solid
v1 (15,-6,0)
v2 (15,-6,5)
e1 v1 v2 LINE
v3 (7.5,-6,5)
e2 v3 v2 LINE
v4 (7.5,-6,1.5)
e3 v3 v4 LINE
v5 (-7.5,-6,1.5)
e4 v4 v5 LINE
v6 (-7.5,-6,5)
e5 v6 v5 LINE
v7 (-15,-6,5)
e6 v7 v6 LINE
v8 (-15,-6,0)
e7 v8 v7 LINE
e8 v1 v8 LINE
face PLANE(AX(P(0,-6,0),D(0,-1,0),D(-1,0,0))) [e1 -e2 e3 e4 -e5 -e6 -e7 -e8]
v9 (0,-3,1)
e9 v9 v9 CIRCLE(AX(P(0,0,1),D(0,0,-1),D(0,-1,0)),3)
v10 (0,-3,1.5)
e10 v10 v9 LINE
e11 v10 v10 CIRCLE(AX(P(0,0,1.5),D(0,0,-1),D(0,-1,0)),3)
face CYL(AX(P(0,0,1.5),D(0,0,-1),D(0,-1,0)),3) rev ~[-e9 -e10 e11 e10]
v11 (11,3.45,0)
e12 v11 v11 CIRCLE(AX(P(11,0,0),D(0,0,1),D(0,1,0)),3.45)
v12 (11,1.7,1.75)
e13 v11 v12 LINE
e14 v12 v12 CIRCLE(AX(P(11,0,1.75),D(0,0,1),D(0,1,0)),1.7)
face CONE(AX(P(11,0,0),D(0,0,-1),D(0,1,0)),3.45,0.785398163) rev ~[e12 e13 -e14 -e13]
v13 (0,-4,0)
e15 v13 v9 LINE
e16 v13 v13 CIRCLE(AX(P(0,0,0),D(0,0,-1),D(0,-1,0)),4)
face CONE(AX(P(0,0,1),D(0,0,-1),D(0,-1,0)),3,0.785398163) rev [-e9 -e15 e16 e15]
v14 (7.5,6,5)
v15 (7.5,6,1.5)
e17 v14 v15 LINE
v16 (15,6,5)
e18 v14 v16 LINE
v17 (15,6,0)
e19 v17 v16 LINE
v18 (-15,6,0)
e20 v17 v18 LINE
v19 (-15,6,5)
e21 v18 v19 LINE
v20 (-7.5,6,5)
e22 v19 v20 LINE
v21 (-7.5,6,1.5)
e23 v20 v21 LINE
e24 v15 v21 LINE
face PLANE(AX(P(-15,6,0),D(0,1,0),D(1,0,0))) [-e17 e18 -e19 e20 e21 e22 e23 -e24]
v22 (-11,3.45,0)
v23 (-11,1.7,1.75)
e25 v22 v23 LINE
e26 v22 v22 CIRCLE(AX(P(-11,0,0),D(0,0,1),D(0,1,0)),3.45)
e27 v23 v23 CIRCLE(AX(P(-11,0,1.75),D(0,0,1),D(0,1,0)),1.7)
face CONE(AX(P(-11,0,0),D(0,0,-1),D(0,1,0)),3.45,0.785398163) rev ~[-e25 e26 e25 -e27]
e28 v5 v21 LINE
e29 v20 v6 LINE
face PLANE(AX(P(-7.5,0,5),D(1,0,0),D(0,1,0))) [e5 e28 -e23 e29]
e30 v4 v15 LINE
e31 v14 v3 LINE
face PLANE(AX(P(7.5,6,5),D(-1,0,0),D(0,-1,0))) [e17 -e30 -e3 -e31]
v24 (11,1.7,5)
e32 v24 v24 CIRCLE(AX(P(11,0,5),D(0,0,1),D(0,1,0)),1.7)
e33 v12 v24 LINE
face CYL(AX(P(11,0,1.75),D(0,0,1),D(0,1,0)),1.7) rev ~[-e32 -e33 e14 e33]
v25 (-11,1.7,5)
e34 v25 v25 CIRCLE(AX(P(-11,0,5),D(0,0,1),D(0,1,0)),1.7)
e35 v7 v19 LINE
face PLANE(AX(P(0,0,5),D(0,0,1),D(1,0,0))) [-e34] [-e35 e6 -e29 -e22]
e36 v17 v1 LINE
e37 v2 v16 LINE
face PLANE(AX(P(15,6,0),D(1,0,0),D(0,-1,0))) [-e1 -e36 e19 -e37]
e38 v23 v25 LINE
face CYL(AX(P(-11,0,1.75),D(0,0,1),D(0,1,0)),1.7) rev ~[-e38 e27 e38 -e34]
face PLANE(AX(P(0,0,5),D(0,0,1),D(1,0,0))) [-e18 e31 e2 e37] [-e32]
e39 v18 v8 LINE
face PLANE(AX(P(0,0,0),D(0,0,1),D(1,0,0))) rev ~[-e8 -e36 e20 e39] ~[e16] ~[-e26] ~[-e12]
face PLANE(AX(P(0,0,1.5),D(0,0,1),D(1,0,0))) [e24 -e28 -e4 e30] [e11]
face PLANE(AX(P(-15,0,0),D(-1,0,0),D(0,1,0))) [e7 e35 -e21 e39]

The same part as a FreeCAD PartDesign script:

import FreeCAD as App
import Part
import Sketcher
from FreeCAD import Vector
Q = App.Units.Quantity


def edges_at(feature, points):
    """Names of the edges that pass closest to the given points."""
    edges = feature.Shape.Edges
    near = lambda p: min(range(len(edges)), key=lambda i: edges[i].distToShape(Part.Vertex(*p))[0])
    return sorted({f"Edge{near(p) + 1}" for p in points})

doc = App.newDocument("Part")
body = doc.addObject("PartDesign::Body", "Body")

# Sketch on XY plane
sketch1 = doc.addObject("Sketcher::SketchObject", "Sketch")
body.addObject(sketch1)
sketch1.AttachmentSupport = (doc.XY_Plane, [""])
sketch1.MapMode = "FlatFace"
sketch1.addGeometry([
    Part.LineSegment(Vector(-15, 6, 0), Vector(-15, -6, 0)),
    Part.LineSegment(Vector(-15, -6, 0), Vector(15, -6, 0)),
    Part.LineSegment(Vector(15, -6, 0), Vector(15, 6, 0)),
    Part.LineSegment(Vector(15, 6, 0), Vector(-15, 6, 0)),
], False)
sketch1.addConstraint([
    Sketcher.Constraint("Coincident", 0, 2, 1, 1),
    Sketcher.Constraint("Coincident", 1, 2, 2, 1),
    Sketcher.Constraint("Coincident", 2, 2, 3, 1),
    Sketcher.Constraint("Coincident", 3, 2, 0, 1),
    Sketcher.Constraint("Vertical", 0),
    Sketcher.Constraint("Horizontal", 1),
    Sketcher.Constraint("Vertical", 2),
    Sketcher.Constraint("Horizontal", 3),
    Sketcher.Constraint("Symmetric", 0, 2, 2, 2, -1, 1),
    Sketcher.Constraint("DistanceX", 1, 1, 1, 2, Q("30 mm")),
    Sketcher.Constraint("DistanceY", 0, 2, 0, 1, Q("12 mm")),
])
pad1 = doc.addObject("PartDesign::Pad", "Pad")
body.addObject(pad1)
pad1.Profile = sketch1
pad1.Length = 5

# Sketch on XY plane
sketch2 = doc.addObject("Sketcher::SketchObject", "Sketch001")
body.addObject(sketch2)
sketch2.AttachmentSupport = (doc.XY_Plane, [""])
sketch2.MapMode = "FlatFace"
sketch2.AttachmentOffset = App.Placement(Vector(0, 0, 5), App.Rotation())
sketch2.addGeometry([
    Part.LineSegment(Vector(7.5, 6, 0), Vector(-7.5, 6, 0)),
    Part.LineSegment(Vector(-7.5, 6, 0), Vector(-7.5, -6, 0)),
    Part.LineSegment(Vector(-7.5, -6, 0), Vector(7.5, -6, 0)),
    Part.LineSegment(Vector(7.5, -6, 0), Vector(7.5, 6, 0)),
], False)
sketch2.addConstraint([
    Sketcher.Constraint("Coincident", 0, 2, 1, 1),
    Sketcher.Constraint("Coincident", 1, 2, 2, 1),
    Sketcher.Constraint("Coincident", 2, 2, 3, 1),
    Sketcher.Constraint("Coincident", 3, 2, 0, 1),
    Sketcher.Constraint("Horizontal", 0),
    Sketcher.Constraint("Vertical", 1),
    Sketcher.Constraint("Horizontal", 2),
    Sketcher.Constraint("Vertical", 3),
    Sketcher.Constraint("Symmetric", 0, 2, 2, 2, -1, 1),
    Sketcher.Constraint("DistanceX", 0, 2, 0, 1, Q("15 mm")),
    Sketcher.Constraint("DistanceY", 1, 2, 1, 1, Q("12 mm")),
])
pocket1 = doc.addObject("PartDesign::Pocket", "Pocket")
body.addObject(pocket1)
pocket1.Profile = sketch2
pocket1.Length = 3.5

# Sketch on XY plane
sketch3 = doc.addObject("Sketcher::SketchObject", "Sketch002")
body.addObject(sketch3)
sketch3.AttachmentSupport = (doc.XY_Plane, [""])
sketch3.MapMode = "FlatFace"
sketch3.addGeometry([
    Part.Circle(Vector(11, 0, 0), Vector(0, 0, 1), 1.7),
    Part.Circle(Vector(-11, 0, 0), Vector(0, 0, 1), 1.7),
], False)
sketch3.addConstraint([
    Sketcher.Constraint("Equal", 0, 1),
    Sketcher.Constraint("Symmetric", 0, 3, 1, 3, -1, 1),
    Sketcher.Constraint("PointOnObject", 0, 3, -1),
    Sketcher.Constraint("Diameter", 0, Q("3.4 mm")),
    Sketcher.Constraint("DistanceX", -1, 1, 0, 3, Q("11 mm")),
])
doc.recompute()
hole = doc.addObject("PartDesign::Hole", "Hole")
body.addObject(hole)
hole.Profile = sketch3
hole.ThreadType = "None"
hole.Diameter = 3.4
hole.DepthType = "ThroughAll"
hole.HoleCutType = "Countersink"
hole.HoleCutDiameter = 6.9
hole.HoleCutCountersinkAngle = 90
hole.Reversed = True

# Sketch on XY plane
sketch4 = doc.addObject("Sketcher::SketchObject", "Sketch003")
body.addObject(sketch4)
sketch4.AttachmentSupport = (doc.XY_Plane, [""])
sketch4.MapMode = "FlatFace"
sketch4.AttachmentOffset = App.Placement(Vector(0, 0, 1.5), App.Rotation())
sketch4.addGeometry(Part.Circle(Vector(0, 0, 0), Vector(0, 0, 1), 3), False)
sketch4.addConstraint([
    Sketcher.Constraint("Coincident", 0, 3, -1, 1),
    Sketcher.Constraint("Diameter", 0, Q("6 mm")),
])
doc.recompute()
hole2 = doc.addObject("PartDesign::Hole", "Hole001")
body.addObject(hole2)
hole2.Profile = sketch4
hole2.ThreadType = "None"
hole2.Diameter = 6
hole2.DepthType = "ThroughAll"
doc.recompute()

chamfer = doc.addObject("PartDesign::Chamfer", "Chamfer")
body.addObject(chamfer)
chamfer.Base = (hole2, edges_at(hole2, [(0, 3, 0)]))
chamfer.Size = 1

doc.recompute()
